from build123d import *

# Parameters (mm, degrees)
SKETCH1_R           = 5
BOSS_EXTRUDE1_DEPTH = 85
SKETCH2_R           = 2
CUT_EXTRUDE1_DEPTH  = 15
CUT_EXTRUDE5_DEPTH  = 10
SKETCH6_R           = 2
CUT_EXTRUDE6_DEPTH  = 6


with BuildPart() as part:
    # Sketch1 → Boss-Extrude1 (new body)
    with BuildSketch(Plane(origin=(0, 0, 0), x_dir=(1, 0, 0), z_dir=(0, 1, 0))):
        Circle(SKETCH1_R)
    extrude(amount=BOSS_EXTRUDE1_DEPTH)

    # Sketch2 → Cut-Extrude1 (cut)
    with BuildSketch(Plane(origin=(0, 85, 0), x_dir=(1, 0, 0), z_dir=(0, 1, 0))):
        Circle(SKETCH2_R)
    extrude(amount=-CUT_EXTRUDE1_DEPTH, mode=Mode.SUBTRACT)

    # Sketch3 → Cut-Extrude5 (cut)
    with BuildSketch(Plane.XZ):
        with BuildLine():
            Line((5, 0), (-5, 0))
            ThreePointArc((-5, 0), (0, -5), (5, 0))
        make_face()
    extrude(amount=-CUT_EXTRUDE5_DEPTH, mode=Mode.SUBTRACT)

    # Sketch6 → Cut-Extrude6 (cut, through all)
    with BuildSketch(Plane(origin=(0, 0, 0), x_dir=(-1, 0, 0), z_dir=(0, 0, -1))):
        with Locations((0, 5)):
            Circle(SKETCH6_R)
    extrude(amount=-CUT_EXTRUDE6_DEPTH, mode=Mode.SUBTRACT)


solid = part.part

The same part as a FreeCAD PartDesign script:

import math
import FreeCAD as App
import Part
import Sketcher
from FreeCAD import Vector
Q = App.Units.Quantity

doc = App.newDocument("Part")
body = doc.addObject("PartDesign::Body", "Body")

sketch1 = body.newObject("Sketcher::SketchObject", "Sketch")
sketch1.AttachmentSupport = (doc.getObject("XZ_Plane"), [""])
sketch1.MapMode = "FlatFace"
sketch1.addGeometry(Part.Circle(Vector(0, 0, 0), Vector(0, 0, 1), 5), False)
sketch1.addConstraint([
    Sketcher.Constraint("Coincident", 0, 3, -1, 1),
    Sketcher.Constraint("Diameter", 0, Q("10 mm")),
])
pad1 = body.newObject("PartDesign::Pad", "Pad")
pad1.Profile = sketch1
pad1.Length = 85
pad1.Reversed = True

sketch2 = body.newObject("Sketcher::SketchObject", "Sketch001")
sketch2.AttachmentSupport = (doc.getObject("XZ_Plane"), [""])
sketch2.MapMode = "FlatFace"
sketch2.AttachmentOffset = App.Placement(Vector(0, 0, -85), App.Rotation())
sketch2.addGeometry(Part.Circle(Vector(0, 0, 0), Vector(0, 0, 1), 2), False)
sketch2.addConstraint([
    Sketcher.Constraint("Coincident", 0, 3, -1, 1),
    Sketcher.Constraint("Diameter", 0, Q("4 mm")),
])
pocket1 = body.newObject("PartDesign::Pocket", "Pocket")
pocket1.Profile = sketch2
pocket1.Length = 15
pocket1.Reversed = True

sketch3 = body.newObject("Sketcher::SketchObject", "Sketch002")
sketch3.AttachmentSupport = (doc.getObject("XZ_Plane"), [""])
sketch3.MapMode = "FlatFace"
sketch3.addGeometry([
    Part.LineSegment(Vector(5, 0, 0), Vector(-5, 0, 0)),
    Part.ArcOfCircle(Part.Circle(Vector(0, 0, 0), Vector(0, 0, 1), 5), math.radians(180), math.radians(360)),
], False)
sketch3.addConstraint([
    Sketcher.Constraint("Coincident", 0, 1, 1, 2),
    Sketcher.Constraint("Coincident", 1, 1, 0, 2),
    Sketcher.Constraint("Horizontal", 0),
    Sketcher.Constraint("Coincident", 1, 3, -1, 1),
    Sketcher.Constraint("PointOnObject", 0, 1, -1),
    Sketcher.Constraint("Radius", 1, Q("5 mm")),
])
pocket2 = body.newObject("PartDesign::Pocket", "Pocket001")
pocket2.Profile = sketch3
pocket2.Length = 10

sketch4 = body.newObject("Sketcher::SketchObject", "Sketch003")
sketch4.AttachmentSupport = (doc.getObject("XY_Plane"), [""])
sketch4.MapMode = "FlatFace"
sketch4.addGeometry(Part.Circle(Vector(0, 5, 0), Vector(0, 0, 1), 2), False)
sketch4.addConstraint([
    Sketcher.Constraint("PointOnObject", 0, 3, -2),
    Sketcher.Constraint("Diameter", 0, Q("4 mm")),
    Sketcher.Constraint("DistanceY", -1, 1, 0, 3, Q("5 mm")),
])
pocket3 = body.newObject("PartDesign::Pocket", "Pocket002")
pocket3.Profile = sketch4
pocket3.Type = "ThroughAll"
pocket3.Reversed = True

doc.recompute()
